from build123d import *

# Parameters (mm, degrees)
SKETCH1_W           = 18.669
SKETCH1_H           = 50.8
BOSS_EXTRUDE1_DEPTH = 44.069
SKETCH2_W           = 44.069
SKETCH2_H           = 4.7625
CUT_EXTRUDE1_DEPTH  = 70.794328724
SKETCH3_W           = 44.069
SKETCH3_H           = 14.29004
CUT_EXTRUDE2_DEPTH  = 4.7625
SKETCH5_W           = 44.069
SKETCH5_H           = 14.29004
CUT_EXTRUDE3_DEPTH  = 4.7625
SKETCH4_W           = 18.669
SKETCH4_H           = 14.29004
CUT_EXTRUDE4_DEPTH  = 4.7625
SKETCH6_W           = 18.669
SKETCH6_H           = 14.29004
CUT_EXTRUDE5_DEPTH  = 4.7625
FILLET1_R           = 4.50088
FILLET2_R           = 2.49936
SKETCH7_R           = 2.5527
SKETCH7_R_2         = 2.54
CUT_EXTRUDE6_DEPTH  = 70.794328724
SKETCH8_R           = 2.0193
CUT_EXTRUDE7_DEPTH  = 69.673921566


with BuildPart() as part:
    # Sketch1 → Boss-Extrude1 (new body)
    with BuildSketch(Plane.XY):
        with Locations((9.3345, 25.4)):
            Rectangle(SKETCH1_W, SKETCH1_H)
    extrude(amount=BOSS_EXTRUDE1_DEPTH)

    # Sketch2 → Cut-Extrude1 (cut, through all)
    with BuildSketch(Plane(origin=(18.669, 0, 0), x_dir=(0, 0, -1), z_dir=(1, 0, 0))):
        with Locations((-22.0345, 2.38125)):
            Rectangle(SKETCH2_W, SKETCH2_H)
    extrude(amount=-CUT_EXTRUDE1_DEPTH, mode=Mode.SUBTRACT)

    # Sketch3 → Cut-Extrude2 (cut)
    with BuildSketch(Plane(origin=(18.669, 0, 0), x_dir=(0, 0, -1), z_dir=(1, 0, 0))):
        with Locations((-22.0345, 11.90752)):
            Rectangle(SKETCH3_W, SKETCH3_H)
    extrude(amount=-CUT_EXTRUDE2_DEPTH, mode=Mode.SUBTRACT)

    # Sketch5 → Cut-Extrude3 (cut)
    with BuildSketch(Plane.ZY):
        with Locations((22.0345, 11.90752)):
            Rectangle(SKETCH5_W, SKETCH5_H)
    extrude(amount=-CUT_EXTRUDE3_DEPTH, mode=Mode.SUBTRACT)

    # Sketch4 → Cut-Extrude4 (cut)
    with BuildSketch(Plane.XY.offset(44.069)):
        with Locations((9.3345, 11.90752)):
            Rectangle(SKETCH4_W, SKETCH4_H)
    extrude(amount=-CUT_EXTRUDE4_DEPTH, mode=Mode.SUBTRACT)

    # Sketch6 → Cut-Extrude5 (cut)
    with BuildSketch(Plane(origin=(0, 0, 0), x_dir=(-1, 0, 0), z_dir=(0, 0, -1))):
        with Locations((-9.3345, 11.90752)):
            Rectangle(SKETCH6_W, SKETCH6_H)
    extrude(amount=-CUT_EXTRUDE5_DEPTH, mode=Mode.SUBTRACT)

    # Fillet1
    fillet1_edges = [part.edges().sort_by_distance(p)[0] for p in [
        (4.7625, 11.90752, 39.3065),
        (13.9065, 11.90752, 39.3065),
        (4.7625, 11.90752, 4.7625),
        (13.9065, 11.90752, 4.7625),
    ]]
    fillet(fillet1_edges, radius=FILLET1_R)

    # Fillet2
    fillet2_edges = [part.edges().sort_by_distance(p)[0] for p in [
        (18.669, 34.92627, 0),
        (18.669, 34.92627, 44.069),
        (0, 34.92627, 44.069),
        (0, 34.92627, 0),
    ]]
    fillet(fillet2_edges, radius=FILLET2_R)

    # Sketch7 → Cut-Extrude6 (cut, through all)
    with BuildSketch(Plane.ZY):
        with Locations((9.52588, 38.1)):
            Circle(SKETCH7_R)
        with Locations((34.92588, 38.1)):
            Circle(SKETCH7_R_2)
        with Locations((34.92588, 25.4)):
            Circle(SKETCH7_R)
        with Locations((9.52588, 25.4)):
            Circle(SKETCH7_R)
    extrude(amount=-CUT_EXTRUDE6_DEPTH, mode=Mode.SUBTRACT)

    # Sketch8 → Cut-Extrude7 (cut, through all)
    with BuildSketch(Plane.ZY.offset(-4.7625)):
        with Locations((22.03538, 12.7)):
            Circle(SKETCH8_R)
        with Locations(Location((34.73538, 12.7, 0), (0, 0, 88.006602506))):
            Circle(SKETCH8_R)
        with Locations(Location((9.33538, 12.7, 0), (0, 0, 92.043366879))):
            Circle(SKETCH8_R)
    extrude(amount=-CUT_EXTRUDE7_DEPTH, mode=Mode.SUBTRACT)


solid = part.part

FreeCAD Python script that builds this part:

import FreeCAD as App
import Part
import Sketcher

V = App.Vector
Q = App.Units.Quantity


def edges_at(feature, points):
    """Names of the edges that pass closest to the given points."""
    edges = feature.Shape.Edges
    near = lambda p: min(range(len(edges)), key=lambda i: edges[i].distToShape(Part.Vertex(*p))[0])
    return sorted({f"Edge{near(p) + 1}" for p in points})


def add_polygon(sketch, points):
    """Adds a closed chain of lines whose ends are joined by coincident constraints."""
    first, n = sketch.GeometryCount, len(points)
    for a, b in zip(points, points[1:] + points[:1]):
        sketch.addGeometry(Part.LineSegment(App.Vector(*a, 0), App.Vector(*b, 0)), False)
    for i in range(n):
        sketch.addConstraint(Sketcher.Constraint("Coincident", first + i, 2, first + (i + 1) % n, 1))

doc = App.newDocument("Part")
body = doc.addObject("PartDesign::Body", "Body")

# Sketch on XY plane
sketch1 = body.newObject("Sketcher::SketchObject", "Sketch")
sketch1.AttachmentSupport = (doc.getObject("XY_Plane"), [""])
sketch1.MapMode = "FlatFace"
add_polygon(sketch1, [(0, 51), (0, 0), (19, 0), (19, 51)])  # lines 0-3
sketch1.addConstraint([
    Sketcher.Constraint("Vertical", 0),
    Sketcher.Constraint("Horizontal", 1),
    Sketcher.Constraint("Vertical", 2),
    Sketcher.Constraint("Horizontal", 3),
    Sketcher.Constraint("Coincident", 0, 2, -1, 1),
    Sketcher.Constraint("DistanceY", 0, 2, 0, 1, Q("2 in")),
    Sketcher.Constraint("DistanceX", 1, 1, 1, 2, Q("0.735 in")),
])
pad1 = body.newObject("PartDesign::Pad", "Pad")
pad1.Profile = sketch1
pad1.Length = Q("1.735 in")

# Sketch on YZ plane
sketch2 = body.newObject("Sketcher::SketchObject", "Sketch001")
sketch2.AttachmentSupport = (doc.getObject("YZ_Plane"), [""])
sketch2.MapMode = "FlatFace"
sketch2.AttachmentOffset = App.Placement(V(0, 0, 0.735 * 25.4), App.Rotation())
add_polygon(sketch2, [(4.8, 44.1), (0, 44.1), (0, 0), (4.8, 0)])  # lines 0-3
sketch2.addConstraint([
    Sketcher.Constraint("Horizontal", 0),
    Sketcher.Constraint("Vertical", 1),
    Sketcher.Constraint("Horizontal", 2),
    Sketcher.Constraint("Vertical", 3),
    Sketcher.Constraint("Coincident", 1, 2, -1, 1),
    Sketcher.Constraint("DistanceX", 0, 2, 0, 1, Q("0.1875 in")),
    Sketcher.Constraint("DistanceY", 1, 2, 1, 1, Q("1.735 in")),
])
pocket1 = body.newObject("PartDesign::Pocket", "Pocket")
pocket1.Profile = sketch2
pocket1.Type = "ThroughAll"

# Sketch on YZ plane
sketch3 = body.newObject("Sketcher::SketchObject", "Sketch002")
sketch3.AttachmentSupport = (doc.getObject("YZ_Plane"), [""])
sketch3.MapMode = "FlatFace"
sketch3.AttachmentOffset = App.Placement(V(0, 0, 0.735 * 25.4), App.Rotation())
add_polygon(sketch3, [(19, 44), (5, 44), (5, 0), (19, 0)])  # lines 0-3
sketch3.addConstraint([
    Sketcher.Constraint("Horizontal", 0),
    Sketcher.Constraint("Vertical", 1),
    Sketcher.Constraint("Horizontal", 2),
    Sketcher.Constraint("Vertical", 3),
    Sketcher.Constraint("PointOnObject", 1, 2, -1),
    Sketcher.Constraint("DistanceY", 1, 2, 1, 1, Q("1.735 in")),
    Sketcher.Constraint("DistanceX", 0, 2, 0, 1, Q("0.5626 in")),
    Sketcher.Constraint("DistanceX", -1, 1, 0, 2, Q("0.1875 in")),
])
pocket2 = body.newObject("PartDesign::Pocket", "Pocket001")
pocket2.Profile = sketch3
pocket2.Length = Q("0.1875 in")

# Sketch on YZ plane
sketch4 = body.newObject("Sketcher::SketchObject", "Sketch003")
sketch4.AttachmentSupport = (doc.getObject("YZ_Plane"), [""])
sketch4.MapMode = "FlatFace"
add_polygon(sketch4, [(19, 0), (5, 0), (5, 44), (19, 44)])  # lines 0-3
sketch4.addConstraint([
    Sketcher.Constraint("Horizontal", 0),
    Sketcher.Constraint("Vertical", 1),
    Sketcher.Constraint("Horizontal", 2),
    Sketcher.Constraint("Vertical", 3),
    Sketcher.Constraint("PointOnObject", 0, 2, -1),
    Sketcher.Constraint("DistanceY", 1, 1, 1, 2, Q("1.735 in")),
    Sketcher.Constraint("DistanceX", 0, 2, 0, 1, Q("0.5626 in")),
    Sketcher.Constraint("DistanceX", -1, 1, 0, 2, Q("0.1875 in")),
])
pocket3 = body.newObject("PartDesign::Pocket", "Pocket002")
pocket3.Profile = sketch4
pocket3.Length = Q("0.1875 in")
pocket3.Reversed = True

# Sketch on XY plane
sketch5 = body.newObject("Sketcher::SketchObject", "Sketch004")
sketch5.AttachmentSupport = (doc.getObject("XY_Plane"), [""])
sketch5.MapMode = "FlatFace"
sketch5.AttachmentOffset = App.Placement(V(0, 0, 1.735 * 25.4), App.Rotation())
add_polygon(sketch5, [(0, 19), (0, 5), (19, 5), (19, 19)])  # lines 0-3
sketch5.addConstraint([
    Sketcher.Constraint("Vertical", 0),
    Sketcher.Constraint("Horizontal", 1),
    Sketcher.Constraint("Vertical", 2),
    Sketcher.Constraint("Horizontal", 3),
    Sketcher.Constraint("PointOnObject", 0, 2, -2),
    Sketcher.Constraint("DistanceX", 1, 1, 1, 2, Q("0.735 in")),
    Sketcher.Constraint("DistanceY", 0, 2, 0, 1, Q("0.5626 in")),
    Sketcher.Constraint("DistanceY", -1, 1, 0, 2, Q("0.1875 in")),
])
pocket4 = body.newObject("PartDesign::Pocket", "Pocket003")
pocket4.Profile = sketch5
pocket4.Length = Q("0.1875 in")

# Sketch on XY plane
sketch6 = body.newObject("Sketcher::SketchObject", "Sketch005")
sketch6.AttachmentSupport = (doc.getObject("XY_Plane"), [""])
sketch6.MapMode = "FlatFace"
add_polygon(sketch6, [(19, 19), (19, 5), (0, 5), (0, 19)])  # lines 0-3
sketch6.addConstraint([
    Sketcher.Constraint("Vertical", 0),
    Sketcher.Constraint("Horizontal", 1),
    Sketcher.Constraint("Vertical", 2),
    Sketcher.Constraint("Horizontal", 3),
    Sketcher.Constraint("PointOnObject", 1, 2, -2),
    Sketcher.Constraint("DistanceX", 1, 2, 1, 1, Q("0.735 in")),
    Sketcher.Constraint("DistanceY", 0, 2, 0, 1, Q("0.5626 in")),
    Sketcher.Constraint("DistanceY", -1, 1, 0, 2, Q("0.1875 in")),
])
pocket5 = body.newObject("PartDesign::Pocket", "Pocket004")
pocket5.Profile = sketch6
pocket5.Length = Q("0.1875 in")
pocket5.Reversed = True
doc.recompute()

fillet = body.newObject("PartDesign::Fillet", "Fillet")
fillet.Base = (pocket5, edges_at(pocket5, [
    (4.763, 11.908, 39.306),
    (13.906, 11.908, 39.306),
    (4.763, 11.908, 4.763),
    (13.906, 11.908, 4.763),
]))
fillet.Radius = Q("0.1772 in")
doc.recompute()

fillet2 = body.newObject("PartDesign::Fillet", "Fillet001")
fillet2.Base = (fillet, edges_at(fillet, [
    (18.669, 34.926, 0),
    (18.669, 34.926, 44.069),
    (0, 34.926, 44.069),
    (0, 34.926, 0),
]))
fillet2.Radius = Q("0.0984 in")

# Sketch on YZ plane
sketch7 = body.newObject("Sketcher::SketchObject", "Sketch006")
sketch7.AttachmentSupport = (doc.getObject("YZ_Plane"), [""])
sketch7.MapMode = "FlatFace"
sketch7.addGeometry([
    Part.Circle(V(38.1, 9.5, 0), V(0, 0, 1), 2.6),
    Part.Circle(V(38.1, 34.9, 0), V(0, 0, 1), 2.5),
    Part.Circle(V(25.4, 34.9, 0), V(0, 0, 1), 2.6),
    Part.Circle(V(25.4, 9.5, 0), V(0, 0, 1), 2.6),
], False)
sketch7.addConstraint([
    Sketcher.Constraint("Equal", 0, 2),
    Sketcher.Constraint("Equal", 2, 3),
    Sketcher.Constraint("Horizontal", 1, 3, 2, 3),
    Sketcher.Constraint("Horizontal", 0, 3, 3, 3),
    Sketcher.Constraint("Vertical", 0, 3, 1, 3),
    Sketcher.Constraint("Vertical", 2, 3, 3, 3),
    Sketcher.Constraint("Diameter", 1, Q("0.2 in")),
    Sketcher.Constraint("Diameter", 0, Q("0.201 in")),
    Sketcher.Constraint("DistanceX", -1, 1, 2, 3, Q("1 in")),
    Sketcher.Constraint("DistanceY", 0, 3, 1, 3, Q("1 in")),
    Sketcher.Constraint("DistanceX", -1, 1, 0, 3, Q("1.5 in")),
    Sketcher.Constraint("DistanceY", -1, 1, 0, 3, Q("9.52588 mm")),
])
pocket6 = body.newObject("PartDesign::Pocket", "Pocket005")
pocket6.Profile = sketch7
pocket6.Type = "ThroughAll"
pocket6.Reversed = True

# Sketch on YZ plane
sketch8 = body.newObject("Sketcher::SketchObject", "Sketch007")
sketch8.AttachmentSupport = (doc.getObject("YZ_Plane"), [""])
sketch8.MapMode = "FlatFace"
sketch8.AttachmentOffset = App.Placement(V(0, 0, 0.1875 * 25.4), App.Rotation())
sketch8.addGeometry([
    Part.Circle(V(12.7, 22, 0), V(0, 0, 1), 2),
    Part.Circle(V(12.7, 34.7, 0), V(0, 0, 1), 2),
    Part.Circle(V(12.7, 9.3, 0), V(0, 0, 1), 2),
], False)
sketch8.addConstraint([
    Sketcher.Constraint("Equal", 0, 1),
    Sketcher.Constraint("Equal", 1, 2),
    Sketcher.Constraint("Vertical", 0, 3, 1, 3),
    Sketcher.Constraint("Vertical", 1, 3, 2, 3),
    Sketcher.Constraint("Diameter", 0, Q("0.159 in")),
    Sketcher.Constraint("DistanceY", 2, 3, 1, 3, Q("1 in")),
    Sketcher.Constraint("DistanceX", -1, 1, 0, 3, Q("0.5 in")),
    Sketcher.Constraint("DistanceY", 0, 3, 1, 3, Q("0.5 in")),
    Sketcher.Constraint("DistanceY", -1, 1, 0, 3, Q("22.03538 mm")),
])
pocket7 = body.newObject("PartDesign::Pocket", "Pocket006")
pocket7.Profile = sketch8
pocket7.Type = "ThroughAll"
pocket7.Reversed = True

doc.recompute()
